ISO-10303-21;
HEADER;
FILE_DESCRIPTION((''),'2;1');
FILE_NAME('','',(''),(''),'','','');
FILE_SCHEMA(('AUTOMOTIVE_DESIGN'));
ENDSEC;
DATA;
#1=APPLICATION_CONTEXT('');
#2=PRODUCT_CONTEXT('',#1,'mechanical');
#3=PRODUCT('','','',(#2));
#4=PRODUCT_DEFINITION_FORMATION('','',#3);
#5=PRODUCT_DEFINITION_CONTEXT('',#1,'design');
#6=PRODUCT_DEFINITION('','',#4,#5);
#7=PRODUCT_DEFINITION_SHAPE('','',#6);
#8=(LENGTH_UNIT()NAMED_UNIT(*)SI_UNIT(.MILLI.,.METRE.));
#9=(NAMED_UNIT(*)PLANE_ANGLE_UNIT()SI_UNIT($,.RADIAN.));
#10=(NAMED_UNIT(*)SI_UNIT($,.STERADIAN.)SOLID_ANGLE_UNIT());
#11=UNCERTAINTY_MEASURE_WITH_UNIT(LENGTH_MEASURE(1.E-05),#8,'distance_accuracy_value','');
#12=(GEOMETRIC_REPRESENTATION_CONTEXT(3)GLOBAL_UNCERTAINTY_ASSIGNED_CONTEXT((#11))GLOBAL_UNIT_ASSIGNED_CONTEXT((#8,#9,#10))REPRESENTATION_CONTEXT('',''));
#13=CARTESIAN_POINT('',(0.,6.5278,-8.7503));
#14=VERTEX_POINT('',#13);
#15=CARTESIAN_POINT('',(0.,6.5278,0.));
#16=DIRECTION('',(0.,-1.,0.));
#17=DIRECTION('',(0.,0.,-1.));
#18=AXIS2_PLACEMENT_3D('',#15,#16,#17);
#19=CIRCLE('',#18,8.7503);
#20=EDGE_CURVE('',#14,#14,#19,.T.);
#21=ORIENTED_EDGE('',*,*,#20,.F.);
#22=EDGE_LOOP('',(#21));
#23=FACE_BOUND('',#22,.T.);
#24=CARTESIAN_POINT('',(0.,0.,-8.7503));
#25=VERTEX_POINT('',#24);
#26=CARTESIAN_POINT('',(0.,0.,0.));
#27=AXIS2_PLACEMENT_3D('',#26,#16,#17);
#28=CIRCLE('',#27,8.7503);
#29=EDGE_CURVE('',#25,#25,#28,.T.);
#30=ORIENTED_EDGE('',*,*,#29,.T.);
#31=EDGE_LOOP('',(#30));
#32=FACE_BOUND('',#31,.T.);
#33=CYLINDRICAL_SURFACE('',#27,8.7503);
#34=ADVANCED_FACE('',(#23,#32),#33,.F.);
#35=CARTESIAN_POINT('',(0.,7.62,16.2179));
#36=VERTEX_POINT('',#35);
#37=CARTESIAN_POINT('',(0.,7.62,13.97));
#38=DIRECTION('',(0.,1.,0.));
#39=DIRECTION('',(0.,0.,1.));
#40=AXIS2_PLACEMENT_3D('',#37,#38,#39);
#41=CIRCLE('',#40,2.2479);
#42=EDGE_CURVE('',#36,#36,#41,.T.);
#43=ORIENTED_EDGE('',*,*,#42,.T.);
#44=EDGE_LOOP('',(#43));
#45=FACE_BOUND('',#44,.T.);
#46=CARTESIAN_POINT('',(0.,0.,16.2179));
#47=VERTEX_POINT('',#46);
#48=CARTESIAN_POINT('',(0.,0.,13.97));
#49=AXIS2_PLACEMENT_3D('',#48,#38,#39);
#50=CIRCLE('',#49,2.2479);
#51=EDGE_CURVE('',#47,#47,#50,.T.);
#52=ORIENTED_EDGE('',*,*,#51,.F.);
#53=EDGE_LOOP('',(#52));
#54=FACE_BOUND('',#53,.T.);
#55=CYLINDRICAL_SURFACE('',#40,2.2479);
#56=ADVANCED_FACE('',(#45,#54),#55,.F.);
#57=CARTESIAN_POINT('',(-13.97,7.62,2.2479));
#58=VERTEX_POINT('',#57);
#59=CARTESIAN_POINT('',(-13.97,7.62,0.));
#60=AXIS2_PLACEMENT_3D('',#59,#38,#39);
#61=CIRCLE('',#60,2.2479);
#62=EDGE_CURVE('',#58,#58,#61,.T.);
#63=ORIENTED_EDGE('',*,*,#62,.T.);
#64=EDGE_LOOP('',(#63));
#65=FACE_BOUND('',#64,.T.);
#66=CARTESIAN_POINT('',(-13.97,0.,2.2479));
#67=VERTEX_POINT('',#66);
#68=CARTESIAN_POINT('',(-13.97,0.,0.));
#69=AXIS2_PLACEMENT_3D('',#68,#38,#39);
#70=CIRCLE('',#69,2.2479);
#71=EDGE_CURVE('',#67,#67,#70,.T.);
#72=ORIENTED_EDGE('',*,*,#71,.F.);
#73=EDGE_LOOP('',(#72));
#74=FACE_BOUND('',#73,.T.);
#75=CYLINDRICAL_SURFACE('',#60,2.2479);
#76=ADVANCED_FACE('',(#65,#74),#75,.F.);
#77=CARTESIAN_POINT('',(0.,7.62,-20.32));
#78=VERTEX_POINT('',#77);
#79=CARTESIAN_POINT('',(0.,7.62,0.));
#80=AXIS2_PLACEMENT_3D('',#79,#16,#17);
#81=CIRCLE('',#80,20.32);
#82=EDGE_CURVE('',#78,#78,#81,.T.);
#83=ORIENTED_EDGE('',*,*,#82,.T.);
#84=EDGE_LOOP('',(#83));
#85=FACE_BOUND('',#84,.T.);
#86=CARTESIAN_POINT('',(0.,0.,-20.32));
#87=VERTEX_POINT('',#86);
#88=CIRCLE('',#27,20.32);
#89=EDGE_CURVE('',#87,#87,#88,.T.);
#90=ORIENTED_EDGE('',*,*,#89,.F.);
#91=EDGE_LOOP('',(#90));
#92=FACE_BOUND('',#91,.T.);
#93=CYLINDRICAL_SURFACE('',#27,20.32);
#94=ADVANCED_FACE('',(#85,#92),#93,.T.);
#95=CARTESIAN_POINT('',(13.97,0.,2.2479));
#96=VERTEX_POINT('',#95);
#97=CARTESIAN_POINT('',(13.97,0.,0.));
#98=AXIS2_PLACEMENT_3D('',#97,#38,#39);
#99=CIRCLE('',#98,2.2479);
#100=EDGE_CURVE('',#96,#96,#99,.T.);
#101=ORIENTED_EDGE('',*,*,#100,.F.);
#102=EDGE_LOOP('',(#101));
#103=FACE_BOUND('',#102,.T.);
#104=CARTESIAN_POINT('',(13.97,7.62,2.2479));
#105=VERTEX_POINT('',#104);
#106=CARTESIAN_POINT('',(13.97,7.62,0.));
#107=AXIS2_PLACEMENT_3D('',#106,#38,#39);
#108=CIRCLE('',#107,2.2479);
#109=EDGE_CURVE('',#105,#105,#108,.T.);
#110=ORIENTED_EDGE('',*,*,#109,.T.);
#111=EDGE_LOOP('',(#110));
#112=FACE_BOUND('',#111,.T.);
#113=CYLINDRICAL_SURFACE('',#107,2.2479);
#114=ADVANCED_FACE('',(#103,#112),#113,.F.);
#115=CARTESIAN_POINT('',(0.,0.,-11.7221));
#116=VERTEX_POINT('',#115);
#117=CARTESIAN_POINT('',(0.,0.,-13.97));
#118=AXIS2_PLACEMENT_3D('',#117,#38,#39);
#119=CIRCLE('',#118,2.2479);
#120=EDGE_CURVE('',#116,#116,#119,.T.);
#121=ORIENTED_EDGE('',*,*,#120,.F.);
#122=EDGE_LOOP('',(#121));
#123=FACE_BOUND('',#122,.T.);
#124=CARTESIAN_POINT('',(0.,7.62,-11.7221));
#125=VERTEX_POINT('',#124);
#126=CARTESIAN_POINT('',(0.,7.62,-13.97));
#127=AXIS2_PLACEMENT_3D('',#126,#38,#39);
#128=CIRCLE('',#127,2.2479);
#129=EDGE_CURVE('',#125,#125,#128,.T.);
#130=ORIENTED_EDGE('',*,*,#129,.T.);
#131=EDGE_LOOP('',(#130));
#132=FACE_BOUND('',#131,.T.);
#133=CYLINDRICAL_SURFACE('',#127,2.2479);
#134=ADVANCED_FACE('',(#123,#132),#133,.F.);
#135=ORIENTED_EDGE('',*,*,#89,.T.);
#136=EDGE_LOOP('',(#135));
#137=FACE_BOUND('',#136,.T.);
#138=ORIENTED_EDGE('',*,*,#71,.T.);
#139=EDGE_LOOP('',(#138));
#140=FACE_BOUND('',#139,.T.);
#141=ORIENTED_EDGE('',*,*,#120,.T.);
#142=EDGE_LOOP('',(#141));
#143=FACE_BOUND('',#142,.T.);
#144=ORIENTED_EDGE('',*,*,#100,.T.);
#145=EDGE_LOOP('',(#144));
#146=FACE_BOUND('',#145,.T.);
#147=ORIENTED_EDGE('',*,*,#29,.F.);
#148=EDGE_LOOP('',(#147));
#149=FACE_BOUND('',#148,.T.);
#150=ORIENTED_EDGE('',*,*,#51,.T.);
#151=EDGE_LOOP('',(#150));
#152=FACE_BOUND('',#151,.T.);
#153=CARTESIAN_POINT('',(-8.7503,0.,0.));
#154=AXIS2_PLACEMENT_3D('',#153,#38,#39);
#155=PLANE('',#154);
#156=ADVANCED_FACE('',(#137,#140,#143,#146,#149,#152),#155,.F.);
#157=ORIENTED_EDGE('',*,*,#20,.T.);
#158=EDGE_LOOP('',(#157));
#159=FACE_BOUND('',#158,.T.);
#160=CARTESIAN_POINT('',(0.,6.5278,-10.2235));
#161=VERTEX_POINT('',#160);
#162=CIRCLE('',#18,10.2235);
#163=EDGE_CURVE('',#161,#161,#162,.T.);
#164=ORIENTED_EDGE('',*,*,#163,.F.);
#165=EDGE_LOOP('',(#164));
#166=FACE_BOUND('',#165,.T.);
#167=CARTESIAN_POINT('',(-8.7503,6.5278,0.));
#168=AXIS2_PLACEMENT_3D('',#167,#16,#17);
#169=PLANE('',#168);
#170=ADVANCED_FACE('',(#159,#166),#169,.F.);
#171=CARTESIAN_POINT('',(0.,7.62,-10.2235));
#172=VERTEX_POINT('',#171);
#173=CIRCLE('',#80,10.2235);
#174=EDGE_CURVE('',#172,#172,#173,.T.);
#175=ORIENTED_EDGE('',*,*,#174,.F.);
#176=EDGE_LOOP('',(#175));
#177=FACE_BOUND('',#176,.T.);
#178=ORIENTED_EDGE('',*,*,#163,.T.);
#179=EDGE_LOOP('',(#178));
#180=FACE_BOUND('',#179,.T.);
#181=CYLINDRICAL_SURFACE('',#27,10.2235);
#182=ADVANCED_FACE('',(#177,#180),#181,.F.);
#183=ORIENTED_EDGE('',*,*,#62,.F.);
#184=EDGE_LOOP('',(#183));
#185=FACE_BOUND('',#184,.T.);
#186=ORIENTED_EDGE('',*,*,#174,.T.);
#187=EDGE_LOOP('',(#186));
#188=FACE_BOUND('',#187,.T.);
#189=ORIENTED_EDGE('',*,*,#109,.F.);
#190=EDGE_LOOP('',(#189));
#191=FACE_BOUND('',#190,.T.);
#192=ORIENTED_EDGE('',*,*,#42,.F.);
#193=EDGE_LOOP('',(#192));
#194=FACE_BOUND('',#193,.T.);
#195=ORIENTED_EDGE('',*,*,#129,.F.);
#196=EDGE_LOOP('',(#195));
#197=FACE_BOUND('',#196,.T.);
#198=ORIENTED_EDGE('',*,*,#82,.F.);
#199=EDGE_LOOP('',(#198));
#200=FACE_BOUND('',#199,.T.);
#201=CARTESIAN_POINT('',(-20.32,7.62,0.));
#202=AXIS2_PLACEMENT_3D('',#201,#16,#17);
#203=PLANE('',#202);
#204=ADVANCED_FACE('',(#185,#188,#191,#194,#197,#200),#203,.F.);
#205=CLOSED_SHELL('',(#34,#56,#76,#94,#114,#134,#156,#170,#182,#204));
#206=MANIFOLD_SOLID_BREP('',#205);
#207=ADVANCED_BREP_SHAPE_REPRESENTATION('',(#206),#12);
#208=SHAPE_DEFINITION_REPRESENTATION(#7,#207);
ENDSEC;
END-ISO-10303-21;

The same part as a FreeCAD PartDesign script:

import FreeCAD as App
import Part
import Sketcher

V = App.Vector
Q = App.Units.Quantity

doc = App.newDocument("Part")
body = doc.addObject("PartDesign::Body", "Body")

sketch1 = doc.addObject("Sketcher::SketchObject", "Sketch")
body.addObject(sketch1)
sketch1.AttachmentSupport = (doc.XY_Plane, [""])
sketch1.MapMode = "FlatFace"
sketch1.addGeometry(Part.LineSegment(V(-20.3, 7.6, 0), V(-20.3, 0, 0)), False)
sketch1.addGeometry(Part.LineSegment(V(-20.3, 0, 0), V(-8.8, 0, 0)), False)
sketch1.addGeometry(Part.LineSegment(V(-8.8, 0, 0), V(-8.8, 6.5, 0)), False)
sketch1.addGeometry(Part.LineSegment(V(-8.8, 6.5, 0), V(-10.2, 6.5, 0)), False)
sketch1.addGeometry(Part.LineSegment(V(-10.2, 6.5, 0), V(-10.2, 7.6, 0)), False)
sketch1.addGeometry(Part.LineSegment(V(-10.2, 7.6, 0), V(-20.3, 7.6, 0)), False)
sketch1.addConstraint(Sketcher.Constraint("Coincident", 0, 2, 1, 1))
sketch1.addConstraint(Sketcher.Constraint("Coincident", 1, 2, 2, 1))
sketch1.addConstraint(Sketcher.Constraint("Coincident", 2, 2, 3, 1))
sketch1.addConstraint(Sketcher.Constraint("Coincident", 3, 2, 4, 1))
sketch1.addConstraint(Sketcher.Constraint("Coincident", 4, 2, 5, 1))
sketch1.addConstraint(Sketcher.Constraint("Coincident", 5, 2, 0, 1))
sketch1.addConstraint(Sketcher.Constraint("Vertical", 0))
sketch1.addConstraint(Sketcher.Constraint("Horizontal", 1))
sketch1.addConstraint(Sketcher.Constraint("Vertical", 2))
sketch1.addConstraint(Sketcher.Constraint("Horizontal", 3))
sketch1.addConstraint(Sketcher.Constraint("Vertical", 4))
sketch1.addConstraint(Sketcher.Constraint("Horizontal", 5))
sketch1.addConstraint(Sketcher.Constraint("PointOnObject", 0, 2, -1))
sketch1.addConstraint(Sketcher.Constraint("DistanceY", 0, 2, 0, 1, Q("0.3 in")))
sketch1.addConstraint(Sketcher.Constraint("DistanceX", 0, 2, -1, 1, Q("0.8 in")))
sketch1.addConstraint(Sketcher.Constraint("DistanceX", 3, 2, 3, 1, Q("0.058 in")))
sketch1.addConstraint(Sketcher.Constraint("DistanceY", 2, 1, 2, 2, Q("0.257 in")))
sketch1.addConstraint(Sketcher.Constraint("DistanceX", 1, 1, 1, 2, Q("0.4555 in")))
revolution = doc.addObject("PartDesign::Revolution", "Revolution")
body.addObject(revolution)
revolution.Profile = sketch1
revolution.ReferenceAxis = (sketch1, ["V_Axis"])
revolution.Angle = 360

sketch2 = doc.addObject("Sketcher::SketchObject", "Sketch001")
body.addObject(sketch2)
sketch2.AttachmentSupport = (doc.XZ_Plane, [""])
sketch2.MapMode = "FlatFace"
sketch2.AttachmentOffset = App.Placement(V(0, 0, -0.3 * 25.4), App.Rotation())
sketch2.addGeometry(Part.Circle(V(14, 0, 0), V(0, 0, 1), 2.2), False)
sketch2.addGeometry(Part.Circle(V(0, -14, 0), V(0, 0, 1), 2.2), False)
sketch2.addGeometry(Part.Circle(V(-14, 0, 0), V(0, 0, 1), 2.2), False)
sketch2.addGeometry(Part.Circle(V(0, 14, 0), V(0, 0, 1), 2.2), False)
sketch2.addConstraint(Sketcher.Constraint("Equal", 0, 1))
sketch2.addConstraint(Sketcher.Constraint("Equal", 1, 2))
sketch2.addConstraint(Sketcher.Constraint("Equal", 2, 3))
sketch2.addConstraint(Sketcher.Constraint("Symmetric", 0, 3, 2, 3, -1, 1))
sketch2.addConstraint(Sketcher.Constraint("Symmetric", 1, 3, 3, 3, -1, 1))
sketch2.addConstraint(Sketcher.Constraint("PointOnObject", 0, 3, -1))
sketch2.addConstraint(Sketcher.Constraint("PointOnObject", 1, 3, -2))
sketch2.addConstraint(Sketcher.Constraint("Diameter", 0, Q("0.177 in")))
sketch2.addConstraint(Sketcher.Constraint("DistanceX", 2, 3, 0, 3, Q("1.1 in")))
sketch2.addConstraint(Sketcher.Constraint("DistanceY", 1, 3, 3, 3, Q("1.1 in")))
doc.recompute()
hole = doc.addObject("PartDesign::Hole", "Hole")
body.addObject(hole)
hole.Profile = sketch2
hole.ThreadType = "None"
hole.Diameter = Q("0.177 in")
hole.DepthType = "ThroughAll"
hole.Reversed = True

doc.recompute()
